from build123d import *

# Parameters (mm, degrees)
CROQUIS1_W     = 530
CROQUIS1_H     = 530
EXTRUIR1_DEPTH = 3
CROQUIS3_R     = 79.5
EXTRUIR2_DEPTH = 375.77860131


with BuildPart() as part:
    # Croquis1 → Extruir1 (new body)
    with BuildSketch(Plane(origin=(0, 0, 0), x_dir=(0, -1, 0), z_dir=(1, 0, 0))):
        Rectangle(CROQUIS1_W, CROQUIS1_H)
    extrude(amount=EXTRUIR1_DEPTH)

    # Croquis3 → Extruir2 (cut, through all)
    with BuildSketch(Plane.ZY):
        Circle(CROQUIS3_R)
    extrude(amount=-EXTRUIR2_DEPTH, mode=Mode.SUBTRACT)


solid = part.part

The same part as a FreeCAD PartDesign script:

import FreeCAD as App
import Part
import Sketcher

V = App.Vector


def add_polygon(sketch, points):
    """Adds a closed chain of lines whose ends are joined by coincident constraints."""
    first, n = sketch.GeometryCount, len(points)
    for a, b in zip(points, points[1:] + points[:1]):
        sketch.addGeometry(Part.LineSegment(App.Vector(*a, 0), App.Vector(*b, 0)), False)
    for i in range(n):
        sketch.addConstraint(Sketcher.Constraint("Coincident", first + i, 2, first + (i + 1) % n, 1))

doc = App.newDocument("Part")
body = doc.addObject("PartDesign::Body", "Body")

# Sketch on YZ plane
sketch1 = body.newObject("Sketcher::SketchObject", "Sketch")
sketch1.AttachmentSupport = (doc.getObject("YZ_Plane"), [""])
sketch1.MapMode = "FlatFace"
add_polygon(sketch1, [(265, -265), (265, 265), (-265, 265), (-265, -265)])  # lines 0-3
sketch1.addConstraint([
    Sketcher.Constraint("Vertical", 0),
    Sketcher.Constraint("Horizontal", 1),
    Sketcher.Constraint("Vertical", 2),
    Sketcher.Constraint("Horizontal", 3),
    Sketcher.Constraint("Symmetric", 0, 2, 2, 2, -1, 1),
    Sketcher.Constraint("Equal", 3, 0),
    Sketcher.Constraint("DistanceX", 1, 2, 1, 1, 530.0),
])
pad1 = body.newObject("PartDesign::Pad", "Pad")
pad1.Profile = sketch1
pad1.Length = 3

# Sketch on YZ plane
sketch2 = body.newObject("Sketcher::SketchObject", "Sketch001")
sketch2.AttachmentSupport = (doc.getObject("YZ_Plane"), [""])
sketch2.MapMode = "FlatFace"
sketch2.addGeometry(Part.Circle(V(0, 0, 0), V(0, 0, 1), 80), False)
sketch2.addConstraint([
    Sketcher.Constraint("Coincident", 0, 3, -1, 1),
    Sketcher.Constraint("Diameter", 0, 159.0),
])
pocket1 = body.newObject("PartDesign::Pocket", "Pocket")
pocket1.Profile = sketch2
pocket1.Type = "ThroughAll"
pocket1.Reversed = True

doc.recompute()
